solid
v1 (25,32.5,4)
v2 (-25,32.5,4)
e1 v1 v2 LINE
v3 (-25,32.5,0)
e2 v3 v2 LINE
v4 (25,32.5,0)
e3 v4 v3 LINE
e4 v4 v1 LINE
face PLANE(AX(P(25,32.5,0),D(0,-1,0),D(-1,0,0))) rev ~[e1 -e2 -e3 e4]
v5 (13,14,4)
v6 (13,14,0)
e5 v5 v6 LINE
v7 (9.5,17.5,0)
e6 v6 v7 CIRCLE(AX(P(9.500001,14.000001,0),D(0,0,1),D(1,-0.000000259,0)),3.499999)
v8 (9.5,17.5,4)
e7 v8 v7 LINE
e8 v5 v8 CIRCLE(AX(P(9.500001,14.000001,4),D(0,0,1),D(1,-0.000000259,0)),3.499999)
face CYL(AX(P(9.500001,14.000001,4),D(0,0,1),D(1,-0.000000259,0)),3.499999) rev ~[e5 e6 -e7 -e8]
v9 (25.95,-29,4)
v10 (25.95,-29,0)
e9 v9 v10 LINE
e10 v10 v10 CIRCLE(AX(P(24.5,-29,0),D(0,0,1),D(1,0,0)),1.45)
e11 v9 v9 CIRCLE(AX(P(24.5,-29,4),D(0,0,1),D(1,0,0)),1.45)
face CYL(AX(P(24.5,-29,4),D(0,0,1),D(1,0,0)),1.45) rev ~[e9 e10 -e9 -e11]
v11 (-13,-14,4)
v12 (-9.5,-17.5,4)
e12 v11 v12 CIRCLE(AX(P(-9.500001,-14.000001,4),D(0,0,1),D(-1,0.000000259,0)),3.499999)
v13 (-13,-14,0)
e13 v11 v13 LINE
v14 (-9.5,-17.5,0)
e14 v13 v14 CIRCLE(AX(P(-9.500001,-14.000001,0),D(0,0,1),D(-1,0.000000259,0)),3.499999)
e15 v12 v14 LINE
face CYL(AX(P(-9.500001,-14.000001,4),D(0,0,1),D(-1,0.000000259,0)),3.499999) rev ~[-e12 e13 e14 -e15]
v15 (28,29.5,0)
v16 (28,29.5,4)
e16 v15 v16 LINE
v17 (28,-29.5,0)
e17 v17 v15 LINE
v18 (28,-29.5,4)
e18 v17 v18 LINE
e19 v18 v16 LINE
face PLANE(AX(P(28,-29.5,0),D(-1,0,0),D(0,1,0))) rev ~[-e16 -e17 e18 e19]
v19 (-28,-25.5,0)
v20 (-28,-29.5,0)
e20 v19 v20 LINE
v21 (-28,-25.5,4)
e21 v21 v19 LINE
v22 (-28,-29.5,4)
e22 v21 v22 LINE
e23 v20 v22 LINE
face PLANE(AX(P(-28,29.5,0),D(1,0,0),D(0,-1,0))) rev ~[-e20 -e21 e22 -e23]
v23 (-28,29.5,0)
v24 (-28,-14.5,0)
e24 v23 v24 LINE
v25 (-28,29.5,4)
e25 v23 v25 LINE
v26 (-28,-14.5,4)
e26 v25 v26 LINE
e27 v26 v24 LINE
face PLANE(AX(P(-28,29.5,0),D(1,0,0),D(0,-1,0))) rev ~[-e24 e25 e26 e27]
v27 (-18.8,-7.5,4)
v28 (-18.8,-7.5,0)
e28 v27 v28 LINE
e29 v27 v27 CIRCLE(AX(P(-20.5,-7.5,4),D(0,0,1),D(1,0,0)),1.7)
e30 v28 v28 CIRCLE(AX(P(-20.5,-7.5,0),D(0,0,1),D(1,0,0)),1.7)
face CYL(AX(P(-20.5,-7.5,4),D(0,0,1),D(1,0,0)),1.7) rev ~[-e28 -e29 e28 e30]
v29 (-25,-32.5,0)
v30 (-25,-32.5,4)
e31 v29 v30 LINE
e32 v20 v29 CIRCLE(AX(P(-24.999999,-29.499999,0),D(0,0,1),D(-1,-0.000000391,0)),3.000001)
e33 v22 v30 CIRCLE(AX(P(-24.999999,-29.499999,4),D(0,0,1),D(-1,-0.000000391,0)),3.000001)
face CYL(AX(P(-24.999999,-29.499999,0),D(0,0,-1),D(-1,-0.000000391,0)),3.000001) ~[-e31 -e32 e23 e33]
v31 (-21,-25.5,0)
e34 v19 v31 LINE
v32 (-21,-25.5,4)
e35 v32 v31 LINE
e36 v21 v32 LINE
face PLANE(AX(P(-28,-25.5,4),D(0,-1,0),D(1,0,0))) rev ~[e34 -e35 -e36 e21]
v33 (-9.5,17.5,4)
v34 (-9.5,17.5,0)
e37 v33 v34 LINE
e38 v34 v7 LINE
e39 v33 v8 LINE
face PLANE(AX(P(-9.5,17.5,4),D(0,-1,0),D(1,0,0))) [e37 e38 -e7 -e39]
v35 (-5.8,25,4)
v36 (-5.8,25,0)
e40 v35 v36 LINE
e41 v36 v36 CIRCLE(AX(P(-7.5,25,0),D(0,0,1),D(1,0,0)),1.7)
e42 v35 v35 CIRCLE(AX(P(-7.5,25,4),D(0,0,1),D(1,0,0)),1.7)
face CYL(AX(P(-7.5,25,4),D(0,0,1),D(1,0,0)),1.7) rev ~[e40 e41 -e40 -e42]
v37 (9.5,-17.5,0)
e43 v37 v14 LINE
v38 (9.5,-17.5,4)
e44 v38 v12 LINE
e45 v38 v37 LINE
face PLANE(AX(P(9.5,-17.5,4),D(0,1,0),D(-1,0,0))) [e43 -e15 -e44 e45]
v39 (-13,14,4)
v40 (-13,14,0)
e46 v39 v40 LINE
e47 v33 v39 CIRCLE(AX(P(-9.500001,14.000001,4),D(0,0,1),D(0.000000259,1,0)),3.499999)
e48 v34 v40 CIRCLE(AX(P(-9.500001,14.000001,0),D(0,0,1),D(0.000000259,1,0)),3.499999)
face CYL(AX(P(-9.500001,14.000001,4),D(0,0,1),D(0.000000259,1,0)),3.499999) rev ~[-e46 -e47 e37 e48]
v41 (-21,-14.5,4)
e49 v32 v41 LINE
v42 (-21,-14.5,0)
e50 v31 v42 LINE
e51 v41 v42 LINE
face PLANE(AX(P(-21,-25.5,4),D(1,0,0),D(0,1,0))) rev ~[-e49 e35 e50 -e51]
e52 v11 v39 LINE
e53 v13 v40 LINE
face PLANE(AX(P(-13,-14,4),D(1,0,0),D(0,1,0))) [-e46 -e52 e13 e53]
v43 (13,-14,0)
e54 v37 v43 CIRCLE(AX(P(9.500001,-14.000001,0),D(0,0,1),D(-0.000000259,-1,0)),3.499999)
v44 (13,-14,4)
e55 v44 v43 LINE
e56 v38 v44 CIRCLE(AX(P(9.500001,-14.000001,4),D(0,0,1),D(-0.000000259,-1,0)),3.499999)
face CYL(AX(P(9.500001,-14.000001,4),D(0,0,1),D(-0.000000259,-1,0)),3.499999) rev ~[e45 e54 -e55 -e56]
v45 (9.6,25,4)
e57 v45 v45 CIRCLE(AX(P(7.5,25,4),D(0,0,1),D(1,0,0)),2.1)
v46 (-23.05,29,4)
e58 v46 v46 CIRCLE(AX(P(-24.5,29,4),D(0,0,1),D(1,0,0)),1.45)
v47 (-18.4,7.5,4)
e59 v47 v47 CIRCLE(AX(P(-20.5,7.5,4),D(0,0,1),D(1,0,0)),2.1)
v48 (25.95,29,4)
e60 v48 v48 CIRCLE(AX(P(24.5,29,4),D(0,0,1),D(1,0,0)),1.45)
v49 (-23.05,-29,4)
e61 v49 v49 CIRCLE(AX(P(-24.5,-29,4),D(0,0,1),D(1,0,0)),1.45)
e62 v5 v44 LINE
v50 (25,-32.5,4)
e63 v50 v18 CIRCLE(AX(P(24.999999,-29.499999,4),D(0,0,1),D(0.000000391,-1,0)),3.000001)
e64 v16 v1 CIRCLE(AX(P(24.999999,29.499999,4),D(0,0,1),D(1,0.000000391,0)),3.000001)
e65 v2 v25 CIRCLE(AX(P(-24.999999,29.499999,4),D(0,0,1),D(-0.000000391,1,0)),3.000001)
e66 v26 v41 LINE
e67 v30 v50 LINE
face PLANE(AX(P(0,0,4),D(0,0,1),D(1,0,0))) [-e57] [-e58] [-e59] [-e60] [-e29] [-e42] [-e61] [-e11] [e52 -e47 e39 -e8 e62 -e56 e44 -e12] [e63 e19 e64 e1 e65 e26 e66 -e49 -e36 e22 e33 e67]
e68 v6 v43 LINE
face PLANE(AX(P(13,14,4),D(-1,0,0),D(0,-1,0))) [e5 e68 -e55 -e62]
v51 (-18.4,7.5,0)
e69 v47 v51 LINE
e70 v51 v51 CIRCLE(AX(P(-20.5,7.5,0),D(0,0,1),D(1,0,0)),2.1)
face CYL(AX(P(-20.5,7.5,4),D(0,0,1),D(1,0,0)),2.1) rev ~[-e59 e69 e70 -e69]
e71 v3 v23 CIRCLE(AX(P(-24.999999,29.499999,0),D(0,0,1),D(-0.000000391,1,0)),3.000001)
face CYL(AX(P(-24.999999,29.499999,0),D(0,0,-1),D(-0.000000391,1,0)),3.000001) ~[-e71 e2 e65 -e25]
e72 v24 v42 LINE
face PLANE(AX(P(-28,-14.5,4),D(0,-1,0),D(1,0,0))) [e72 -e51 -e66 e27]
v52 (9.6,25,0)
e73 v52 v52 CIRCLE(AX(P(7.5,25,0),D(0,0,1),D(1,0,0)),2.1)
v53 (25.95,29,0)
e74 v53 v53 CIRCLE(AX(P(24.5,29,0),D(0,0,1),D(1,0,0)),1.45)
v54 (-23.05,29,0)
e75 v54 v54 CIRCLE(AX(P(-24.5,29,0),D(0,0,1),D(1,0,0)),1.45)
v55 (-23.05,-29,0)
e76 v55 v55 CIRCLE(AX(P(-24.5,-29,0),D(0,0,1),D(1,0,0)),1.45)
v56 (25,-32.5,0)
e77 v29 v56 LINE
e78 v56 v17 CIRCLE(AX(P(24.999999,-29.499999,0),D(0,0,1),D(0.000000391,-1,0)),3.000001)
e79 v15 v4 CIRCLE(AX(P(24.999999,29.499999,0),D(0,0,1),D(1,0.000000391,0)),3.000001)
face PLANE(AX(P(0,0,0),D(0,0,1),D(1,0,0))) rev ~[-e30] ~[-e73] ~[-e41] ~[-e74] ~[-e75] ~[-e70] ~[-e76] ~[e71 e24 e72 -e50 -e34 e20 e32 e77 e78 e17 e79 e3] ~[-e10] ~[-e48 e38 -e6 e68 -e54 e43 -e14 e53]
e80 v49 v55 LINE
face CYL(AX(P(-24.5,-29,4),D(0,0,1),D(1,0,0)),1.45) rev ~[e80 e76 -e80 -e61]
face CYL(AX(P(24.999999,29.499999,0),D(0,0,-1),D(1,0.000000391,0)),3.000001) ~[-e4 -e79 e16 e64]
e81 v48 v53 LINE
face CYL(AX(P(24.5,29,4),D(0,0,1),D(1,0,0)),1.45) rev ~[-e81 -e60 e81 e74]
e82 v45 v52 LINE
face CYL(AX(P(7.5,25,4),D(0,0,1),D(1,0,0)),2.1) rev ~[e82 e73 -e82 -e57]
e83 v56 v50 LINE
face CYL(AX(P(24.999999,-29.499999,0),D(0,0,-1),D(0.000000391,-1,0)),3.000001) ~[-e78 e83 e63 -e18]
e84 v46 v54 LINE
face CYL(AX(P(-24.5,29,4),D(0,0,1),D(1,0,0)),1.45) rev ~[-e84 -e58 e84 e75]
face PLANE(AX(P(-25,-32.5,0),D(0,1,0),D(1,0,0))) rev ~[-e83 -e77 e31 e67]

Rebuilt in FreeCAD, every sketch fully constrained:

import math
import FreeCAD as App
import Part
import Sketcher
Q = App.Units.Quantity


def add_polygon(sketch, points):
    """Adds a closed chain of lines whose ends are joined by coincident constraints."""
    first, n = sketch.GeometryCount, len(points)
    for a, b in zip(points, points[1:] + points[:1]):
        sketch.addGeometry(Part.LineSegment(App.Vector(*a, 0), App.Vector(*b, 0)), False)
    for i in range(n):
        sketch.addConstraint(Sketcher.Constraint("Coincident", first + i, 2, first + (i + 1) % n, 1))

doc = App.newDocument("Part")
params = doc.addObject("Spreadsheet::Sheet", "Params")
for row, (alias, value) in enumerate([
    ("sketch1_radius", "3.000001 mm"),
    ("sketch1_width", "50 mm"),
    ("sketch1_height", "59 mm"),
    ("pad1_length", "4 mm"),
    ("sketch2_diameter", "2.9 mm"),
    ("sketch3_width", "7 mm"),
    ("sketch3_height", "11 mm"),
    ("sketch4_diameter", "4.2 mm"),
    ("sketch5_diameter", "3.4 mm"),
    ("sketch6_radius", "3.499999 mm"),
    ("sketch6_width", "19 mm"),
    ("sketch6_height", "28 mm"),
], start=1):
    params.set(f"A{row}", alias)
    params.set(f"B{row}", "=" + value)
    params.setAlias(f"B{row}", alias)

body = doc.addObject("PartDesign::Body", "Body")

# Sketch on XY plane
sketch1 = body.newObject("Sketcher::SketchObject", "Sketch")
sketch1.AttachmentSupport = (doc.getObject("XY_Plane"), [""])
sketch1.MapMode = "FlatFace"
sketch1.addGeometry([
    Part.LineSegment(App.Vector(-25, -32.5, 0), App.Vector(25, -32.5, 0)),  # 0
    Part.ArcOfCircle(Part.Circle(App.Vector(25, -29.5, 0), App.Vector(0, 0, 1), 3), math.radians(-90), math.radians(0)),  # 1
    Part.LineSegment(App.Vector(28, -29.5, 0), App.Vector(28, 29.5, 0)),  # 2
    Part.ArcOfCircle(Part.Circle(App.Vector(25, 29.5, 0), App.Vector(0, 0, 1), 3), math.radians(0), math.radians(90)),  # 3
    Part.LineSegment(App.Vector(25, 32.5, 0), App.Vector(-25, 32.5, 0)),  # 4
    Part.ArcOfCircle(Part.Circle(App.Vector(-25, 29.5, 0), App.Vector(0, 0, 1), 3), math.radians(90), math.radians(180)),  # 5
    Part.LineSegment(App.Vector(-28, 29.5, 0), App.Vector(-28, -29.5, 0)),  # 6
    Part.ArcOfCircle(Part.Circle(App.Vector(-25, -29.5, 0), App.Vector(0, 0, 1), 3), math.radians(-180), math.radians(-90)),  # 7
], False)
sketch1.addConstraint([
    Sketcher.Constraint("Tangent", 0, 2, 1, 1),
    Sketcher.Constraint("Tangent", 1, 2, 2, 1),
    Sketcher.Constraint("Tangent", 2, 2, 3, 1),
    Sketcher.Constraint("Tangent", 3, 2, 4, 1),
    Sketcher.Constraint("Tangent", 4, 2, 5, 1),
    Sketcher.Constraint("Tangent", 5, 2, 6, 1),
    Sketcher.Constraint("Tangent", 6, 2, 7, 1),
    Sketcher.Constraint("Tangent", 7, 2, 0, 1),
    Sketcher.Constraint("Horizontal", 0),
    Sketcher.Constraint("Vertical", 2),
    Sketcher.Constraint("Horizontal", 4),
    Sketcher.Constraint("Vertical", 6),
    Sketcher.Constraint("Equal", 1, 3),
    Sketcher.Constraint("Equal", 3, 5),
    Sketcher.Constraint("Equal", 5, 7),
    Sketcher.Constraint("Symmetric", 1, 3, 5, 3, -1, 1),
    Sketcher.Constraint("Radius", 1, Q("3.000001 mm")),
    Sketcher.Constraint("DistanceX", 0, 1, 0, 2, Q("50 mm")),
    Sketcher.Constraint("DistanceY", 2, 1, 2, 2, Q("59 mm")),
])
sketch1.setExpression("Constraints[16]", "Params.sketch1_radius")
sketch1.setExpression("Constraints[17]", "Params.sketch1_width")
sketch1.setExpression("Constraints[18]", "Params.sketch1_height")
pad1 = body.newObject("PartDesign::Pad", "Pad")
pad1.Profile = sketch1
pad1.setExpression("Length", "Params.pad1_length")

# Sketch on XY plane
sketch2 = body.newObject("Sketcher::SketchObject", "Sketch001")
sketch2.AttachmentSupport = (doc.getObject("XY_Plane"), [""])
sketch2.MapMode = "FlatFace"
sketch2.AttachmentOffset = App.Placement(App.Vector(0, 0, 4), App.Rotation())
sketch2.addGeometry([
    Part.Circle(App.Vector(24.5, -29, 0), App.Vector(0, 0, 1), 1.4),
    Part.Circle(App.Vector(-24.5, -29, 0), App.Vector(0, 0, 1), 1.4),
    Part.Circle(App.Vector(-24.5, 29, 0), App.Vector(0, 0, 1), 1.4),
    Part.Circle(App.Vector(24.5, 29, 0), App.Vector(0, 0, 1), 1.4),
], False)
sketch2.addConstraint([
    Sketcher.Constraint("Equal", 0, 1),
    Sketcher.Constraint("Equal", 1, 2),
    Sketcher.Constraint("Equal", 2, 3),
    Sketcher.Constraint("Symmetric", 0, 3, 2, 3, -1, 1),
    Sketcher.Constraint("Symmetric", 1, 3, 3, 3, -1, 1),
    Sketcher.Constraint("Symmetric", 0, 3, 1, 3, -2),
    Sketcher.Constraint("Diameter", 0, Q("2.9 mm")),
    Sketcher.Constraint("DistanceY", 0, 3, -1, 1, Q("29 mm")),
    Sketcher.Constraint("DistanceX", 1, 3, 0, 3, Q("49 mm")),
])
sketch2.setExpression("Constraints[6]", "Params.sketch2_diameter")
pocket1 = body.newObject("PartDesign::Pocket", "Pocket")
pocket1.Profile = sketch2
pocket1.Type = "ThroughAll"

# Sketch on XY plane
sketch3 = body.newObject("Sketcher::SketchObject", "Sketch002")
sketch3.AttachmentSupport = (doc.getObject("XY_Plane"), [""])
sketch3.MapMode = "FlatFace"
sketch3.AttachmentOffset = App.Placement(App.Vector(0, 0, 4), App.Rotation())
add_polygon(sketch3, [(-28, -14), (-28, -26), (-21, -26), (-21, -14)])  # lines 0-3
sketch3.addConstraint([
    Sketcher.Constraint("Vertical", 0),
    Sketcher.Constraint("Horizontal", 1),
    Sketcher.Constraint("Vertical", 2),
    Sketcher.Constraint("Horizontal", 3),
    Sketcher.Constraint("DistanceX", 1, 1, 1, 2, Q("7 mm")),
    Sketcher.Constraint("DistanceY", 0, 2, 0, 1, Q("11 mm")),
    Sketcher.Constraint("DistanceX", 0, 2, -1, 1, Q("28 mm")),
    Sketcher.Constraint("DistanceY", 0, 2, -1, 1, Q("25.5 mm")),
])
sketch3.setExpression("Constraints[8]", "Params.sketch3_width")
sketch3.setExpression("Constraints[9]", "Params.sketch3_height")
pocket2 = body.newObject("PartDesign::Pocket", "Pocket001")
pocket2.Profile = sketch3
pocket2.Type = "ThroughAll"

# Sketch on XY plane
sketch4 = body.newObject("Sketcher::SketchObject", "Sketch003")
sketch4.AttachmentSupport = (doc.getObject("XY_Plane"), [""])
sketch4.MapMode = "FlatFace"
sketch4.AttachmentOffset = App.Placement(App.Vector(0, 0, 4), App.Rotation())
sketch4.addGeometry([
    Part.Circle(App.Vector(7.5, 25, 0), App.Vector(0, 0, 1), 2.1),
    Part.Circle(App.Vector(-20.5, 7.5, 0), App.Vector(0, 0, 1), 2.1),
], False)
sketch4.addConstraint([
    Sketcher.Constraint("Equal", 0, 1),
    Sketcher.Constraint("Diameter", 0, Q("4.2 mm")),
    Sketcher.Constraint("DistanceY", -1, 1, 0, 3, Q("25 mm")),
    Sketcher.Constraint("DistanceX", 1, 3, 0, 3, Q("28 mm")),
    Sketcher.Constraint("DistanceX", -1, 1, 0, 3, Q("7.5 mm")),
    Sketcher.Constraint("DistanceY", -1, 1, 1, 3, Q("7.5 mm")),
])
sketch4.setExpression("Constraints[1]", "Params.sketch4_diameter")
pocket3 = body.newObject("PartDesign::Pocket", "Pocket002")
pocket3.Profile = sketch4
pocket3.Type = "ThroughAll"

# Sketch on XY plane
sketch5 = body.newObject("Sketcher::SketchObject", "Sketch004")
sketch5.AttachmentSupport = (doc.getObject("XY_Plane"), [""])
sketch5.MapMode = "FlatFace"
sketch5.AttachmentOffset = App.Placement(App.Vector(0, 0, 4), App.Rotation())
sketch5.addGeometry([
    Part.Circle(App.Vector(-20.5, -7.5, 0), App.Vector(0, 0, 1), 1.7),
    Part.Circle(App.Vector(-7.5, 25, 0), App.Vector(0, 0, 1), 1.7),
], False)
sketch5.addConstraint([
    Sketcher.Constraint("Equal", 0, 1),
    Sketcher.Constraint("Diameter", 0, Q("3.4 mm")),
    Sketcher.Constraint("DistanceY", -1, 1, 1, 3, Q("25 mm")),
    Sketcher.Constraint("DistanceX", 0, 3, 1, 3, Q("13 mm")),
    Sketcher.Constraint("DistanceX", 0, 3, -1, 1, Q("20.5 mm")),
    Sketcher.Constraint("DistanceY", 0, 3, -1, 1, Q("7.5 mm")),
])
sketch5.setExpression("Constraints[1]", "Params.sketch5_diameter")
pocket4 = body.newObject("PartDesign::Pocket", "Pocket003")
pocket4.Profile = sketch5
pocket4.Type = "ThroughAll"

# Sketch on XY plane
sketch6 = body.newObject("Sketcher::SketchObject", "Sketch005")
sketch6.AttachmentSupport = (doc.getObject("XY_Plane"), [""])
sketch6.MapMode = "FlatFace"
sketch6.AttachmentOffset = App.Placement(App.Vector(0, 0, 4), App.Rotation())
sketch6.addGeometry([
    Part.LineSegment(App.Vector(9.5, 17.5, 0), App.Vector(-9.5, 17.5, 0)),  # 0
    Part.ArcOfCircle(Part.Circle(App.Vector(-9.5, 14, 0), App.Vector(0, 0, 1), 3.5), math.radians(90), math.radians(180)),  # 1
    Part.LineSegment(App.Vector(-13, 14, 0), App.Vector(-13, -14, 0)),  # 2
    Part.ArcOfCircle(Part.Circle(App.Vector(-9.5, -14, 0), App.Vector(0, 0, 1), 3.5), math.radians(180), math.radians(270)),  # 3
    Part.LineSegment(App.Vector(-9.5, -17.5, 0), App.Vector(9.5, -17.5, 0)),  # 4
    Part.ArcOfCircle(Part.Circle(App.Vector(9.5, -14, 0), App.Vector(0, 0, 1), 3.5), math.radians(-90), math.radians(0)),  # 5
    Part.LineSegment(App.Vector(13, -14, 0), App.Vector(13, 14, 0)),  # 6
    Part.ArcOfCircle(Part.Circle(App.Vector(9.5, 14, 0), App.Vector(0, 0, 1), 3.5), math.radians(0), math.radians(90)),  # 7
], False)
sketch6.addConstraint([
    Sketcher.Constraint("Tangent", 0, 2, 1, 1),
    Sketcher.Constraint("Tangent", 1, 2, 2, 1),
    Sketcher.Constraint("Tangent", 2, 2, 3, 1),
    Sketcher.Constraint("Tangent", 3, 2, 4, 1),
    Sketcher.Constraint("Tangent", 4, 2, 5, 1),
    Sketcher.Constraint("Tangent", 5, 2, 6, 1),
    Sketcher.Constraint("Tangent", 6, 2, 7, 1),
    Sketcher.Constraint("Tangent", 7, 2, 0, 1),
    Sketcher.Constraint("Horizontal", 0),
    Sketcher.Constraint("Vertical", 2),
    Sketcher.Constraint("Horizontal", 4),
    Sketcher.Constraint("Vertical", 6),
    Sketcher.Constraint("Equal", 1, 3),
    Sketcher.Constraint("Equal", 3, 5),
    Sketcher.Constraint("Equal", 5, 7),
    Sketcher.Constraint("Symmetric", 1, 3, 5, 3, -1, 1),
    Sketcher.Constraint("Radius", 1, Q("3.499999 mm")),
    Sketcher.Constraint("DistanceX", 0, 2, 0, 1, Q("19 mm")),
    Sketcher.Constraint("DistanceY", 2, 2, 2, 1, Q("28 mm")),
])
sketch6.setExpression("Constraints[16]", "Params.sketch6_radius")
sketch6.setExpression("Constraints[17]", "Params.sketch6_width")
sketch6.setExpression("Constraints[18]", "Params.sketch6_height")
pocket5 = body.newObject("PartDesign::Pocket", "Pocket004")
pocket5.Profile = sketch6
pocket5.Type = "ThroughAll"

doc.recompute()
